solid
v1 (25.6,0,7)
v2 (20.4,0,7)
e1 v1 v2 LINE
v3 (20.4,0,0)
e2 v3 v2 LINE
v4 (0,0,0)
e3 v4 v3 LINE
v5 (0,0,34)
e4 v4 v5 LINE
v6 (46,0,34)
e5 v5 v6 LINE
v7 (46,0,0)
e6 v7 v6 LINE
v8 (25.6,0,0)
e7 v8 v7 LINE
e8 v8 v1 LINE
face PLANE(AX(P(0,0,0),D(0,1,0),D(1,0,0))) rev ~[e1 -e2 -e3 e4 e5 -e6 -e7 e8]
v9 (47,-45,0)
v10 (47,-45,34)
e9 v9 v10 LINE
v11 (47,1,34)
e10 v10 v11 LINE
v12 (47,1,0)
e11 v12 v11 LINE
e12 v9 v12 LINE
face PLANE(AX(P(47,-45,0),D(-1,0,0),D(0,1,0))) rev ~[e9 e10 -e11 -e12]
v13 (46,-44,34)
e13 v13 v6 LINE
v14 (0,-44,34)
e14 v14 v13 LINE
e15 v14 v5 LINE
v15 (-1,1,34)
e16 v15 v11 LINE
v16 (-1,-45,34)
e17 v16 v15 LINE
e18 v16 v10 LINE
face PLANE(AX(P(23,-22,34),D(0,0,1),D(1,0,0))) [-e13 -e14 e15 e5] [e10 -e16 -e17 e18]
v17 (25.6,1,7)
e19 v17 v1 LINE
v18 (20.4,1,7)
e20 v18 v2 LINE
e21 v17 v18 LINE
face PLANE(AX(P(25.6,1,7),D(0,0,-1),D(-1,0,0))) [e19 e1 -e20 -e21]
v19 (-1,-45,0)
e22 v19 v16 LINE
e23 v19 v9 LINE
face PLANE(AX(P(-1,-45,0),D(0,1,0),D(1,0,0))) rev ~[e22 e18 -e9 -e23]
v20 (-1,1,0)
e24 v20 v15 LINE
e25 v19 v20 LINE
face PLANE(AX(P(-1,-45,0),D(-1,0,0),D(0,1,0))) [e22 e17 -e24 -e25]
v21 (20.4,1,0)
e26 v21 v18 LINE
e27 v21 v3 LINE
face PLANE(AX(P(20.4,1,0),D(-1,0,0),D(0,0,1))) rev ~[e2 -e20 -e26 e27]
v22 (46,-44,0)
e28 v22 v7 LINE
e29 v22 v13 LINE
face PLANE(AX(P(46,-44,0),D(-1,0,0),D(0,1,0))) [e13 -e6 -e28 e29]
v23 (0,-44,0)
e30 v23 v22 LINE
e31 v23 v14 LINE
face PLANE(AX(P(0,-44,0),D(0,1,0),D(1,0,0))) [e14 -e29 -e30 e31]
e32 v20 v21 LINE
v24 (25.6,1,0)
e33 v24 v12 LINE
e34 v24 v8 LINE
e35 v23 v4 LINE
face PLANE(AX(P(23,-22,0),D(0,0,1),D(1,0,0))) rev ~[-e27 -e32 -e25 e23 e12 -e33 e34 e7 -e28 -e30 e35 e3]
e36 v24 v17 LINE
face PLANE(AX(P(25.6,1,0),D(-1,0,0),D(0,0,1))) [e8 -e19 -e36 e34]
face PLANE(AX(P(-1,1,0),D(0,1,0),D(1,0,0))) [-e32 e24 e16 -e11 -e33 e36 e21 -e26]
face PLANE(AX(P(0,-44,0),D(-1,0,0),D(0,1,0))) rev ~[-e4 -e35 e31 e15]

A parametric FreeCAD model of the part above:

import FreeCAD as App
import Part
import Sketcher
from FreeCAD import Vector
Q = App.Units.Quantity

doc = App.newDocument("Part")
params = doc.addObject("Spreadsheet::Sheet", "Params")
for row, (alias, value) in enumerate([
    ("sketch1_width", "48 mm"),
    ("sketch1_width2", "46 mm"),
    ("sketch1_height", "44 mm"),
    ("pad1_length", "34 mm"),
    ("sketch2_height", "7 mm"),
    ("sketch2_width", "5.2 mm"),
    ("pocket1_length", "1 mm"),
], start=1):
    params.set(f"A{row}", alias)
    params.set(f"B{row}", "=" + value)
    params.setAlias(f"B{row}", alias)

body = doc.addObject("PartDesign::Body", "Body")

# Sketch on XY plane
sketch1 = body.newObject("Sketcher::SketchObject", "Sketch")
sketch1.AttachmentSupport = (doc.getObject("XY_Plane"), [""])
sketch1.MapMode = "FlatFace"
sketch1.addGeometry([
    Part.LineSegment(Vector(-1, 1, 0), Vector(-1, -45, 0)),  # 0
    Part.LineSegment(Vector(-1, -45, 0), Vector(47, -45, 0)),  # 1
    Part.LineSegment(Vector(47, -45, 0), Vector(47, 1, 0)),  # 2
    Part.LineSegment(Vector(47, 1, 0), Vector(-1, 1, 0)),  # 3
    Part.LineSegment(Vector(46, -44, 0), Vector(0, -44, 0)),  # 4
    Part.LineSegment(Vector(0, -44, 0), Vector(0, 0, 0)),  # 5
    Part.LineSegment(Vector(0, 0, 0), Vector(46, 0, 0)),  # 6
    Part.LineSegment(Vector(46, 0, 0), Vector(46, -44, 0)),  # 7
], False)
sketch1.addConstraint([
    Sketcher.Constraint("Coincident", 0, 2, 1, 1),
    Sketcher.Constraint("Coincident", 1, 2, 2, 1),
    Sketcher.Constraint("Coincident", 2, 2, 3, 1),
    Sketcher.Constraint("Coincident", 3, 2, 0, 1),
    Sketcher.Constraint("Coincident", 4, 2, 5, 1),
    Sketcher.Constraint("Coincident", 5, 2, 6, 1),
    Sketcher.Constraint("Coincident", 6, 2, 7, 1),
    Sketcher.Constraint("Coincident", 7, 2, 4, 1),
    Sketcher.Constraint("Vertical", 0),
    Sketcher.Constraint("Horizontal", 1),
    Sketcher.Constraint("Vertical", 2),
    Sketcher.Constraint("Horizontal", 3),
    Sketcher.Constraint("Horizontal", 4),
    Sketcher.Constraint("Vertical", 5),
    Sketcher.Constraint("Horizontal", 6),
    Sketcher.Constraint("Vertical", 7),
    Sketcher.Constraint("Coincident", 5, 2, -1, 1),
    Sketcher.Constraint("Equal", 6, 0),
    Sketcher.Constraint("DistanceX", 1, 1, 1, 2, Q("48 mm")),
    Sketcher.Constraint("DistanceX", 4, 2, 4, 1, Q("46 mm")),
    Sketcher.Constraint("DistanceY", 5, 1, 5, 2, Q("44 mm")),
    Sketcher.Constraint("DistanceX", 0, 2, -1, 1, Q("1 mm")),
    Sketcher.Constraint("DistanceY", 0, 2, -1, 1, Q("45 mm")),
])
sketch1.setExpression("Constraints[18]", "Params.sketch1_width")
sketch1.setExpression("Constraints[19]", "Params.sketch1_width2")
sketch1.setExpression("Constraints[20]", "Params.sketch1_height")
pad1 = body.newObject("PartDesign::Pad", "Pad")
pad1.Profile = sketch1
pad1.setExpression("Length", "Params.pad1_length")

# Sketch on XZ plane
sketch2 = body.newObject("Sketcher::SketchObject", "Sketch001")
sketch2.AttachmentSupport = (doc.getObject("XZ_Plane"), [""])
sketch2.MapMode = "FlatFace"
sketch2.AttachmentOffset = App.Placement(Vector(0, 0, -1), App.Rotation())
sketch2.addGeometry([
    Part.LineSegment(Vector(26, 7, 0), Vector(26, 0, 0)),
    Part.LineSegment(Vector(26, 0, 0), Vector(20, 0, 0)),
    Part.LineSegment(Vector(20, 0, 0), Vector(20, 7, 0)),
    Part.LineSegment(Vector(20, 7, 0), Vector(26, 7, 0)),
], False)
sketch2.addConstraint([
    Sketcher.Constraint("Coincident", 0, 2, 1, 1),
    Sketcher.Constraint("Coincident", 1, 2, 2, 1),
    Sketcher.Constraint("Coincident", 2, 2, 3, 1),
    Sketcher.Constraint("Coincident", 3, 2, 0, 1),
    Sketcher.Constraint("Vertical", 0),
    Sketcher.Constraint("Horizontal", 1),
    Sketcher.Constraint("Vertical", 2),
    Sketcher.Constraint("Horizontal", 3),
    Sketcher.Constraint("PointOnObject", 0, 2, -1),
    Sketcher.Constraint("DistanceY", 0, 2, 0, 1, Q("7 mm")),
    Sketcher.Constraint("DistanceX", 1, 2, 1, 1, Q("5.2 mm")),
    Sketcher.Constraint("DistanceX", -1, 1, 0, 2, Q("25.6 mm")),
])
sketch2.setExpression("Constraints[9]", "Params.sketch2_height")
sketch2.setExpression("Constraints[10]", "Params.sketch2_width")
pocket1 = body.newObject("PartDesign::Pocket", "Pocket")
pocket1.Profile = sketch2
pocket1.setExpression("Length", "Params.pocket1_length")
pocket1.Reversed = True

doc.recompute()
